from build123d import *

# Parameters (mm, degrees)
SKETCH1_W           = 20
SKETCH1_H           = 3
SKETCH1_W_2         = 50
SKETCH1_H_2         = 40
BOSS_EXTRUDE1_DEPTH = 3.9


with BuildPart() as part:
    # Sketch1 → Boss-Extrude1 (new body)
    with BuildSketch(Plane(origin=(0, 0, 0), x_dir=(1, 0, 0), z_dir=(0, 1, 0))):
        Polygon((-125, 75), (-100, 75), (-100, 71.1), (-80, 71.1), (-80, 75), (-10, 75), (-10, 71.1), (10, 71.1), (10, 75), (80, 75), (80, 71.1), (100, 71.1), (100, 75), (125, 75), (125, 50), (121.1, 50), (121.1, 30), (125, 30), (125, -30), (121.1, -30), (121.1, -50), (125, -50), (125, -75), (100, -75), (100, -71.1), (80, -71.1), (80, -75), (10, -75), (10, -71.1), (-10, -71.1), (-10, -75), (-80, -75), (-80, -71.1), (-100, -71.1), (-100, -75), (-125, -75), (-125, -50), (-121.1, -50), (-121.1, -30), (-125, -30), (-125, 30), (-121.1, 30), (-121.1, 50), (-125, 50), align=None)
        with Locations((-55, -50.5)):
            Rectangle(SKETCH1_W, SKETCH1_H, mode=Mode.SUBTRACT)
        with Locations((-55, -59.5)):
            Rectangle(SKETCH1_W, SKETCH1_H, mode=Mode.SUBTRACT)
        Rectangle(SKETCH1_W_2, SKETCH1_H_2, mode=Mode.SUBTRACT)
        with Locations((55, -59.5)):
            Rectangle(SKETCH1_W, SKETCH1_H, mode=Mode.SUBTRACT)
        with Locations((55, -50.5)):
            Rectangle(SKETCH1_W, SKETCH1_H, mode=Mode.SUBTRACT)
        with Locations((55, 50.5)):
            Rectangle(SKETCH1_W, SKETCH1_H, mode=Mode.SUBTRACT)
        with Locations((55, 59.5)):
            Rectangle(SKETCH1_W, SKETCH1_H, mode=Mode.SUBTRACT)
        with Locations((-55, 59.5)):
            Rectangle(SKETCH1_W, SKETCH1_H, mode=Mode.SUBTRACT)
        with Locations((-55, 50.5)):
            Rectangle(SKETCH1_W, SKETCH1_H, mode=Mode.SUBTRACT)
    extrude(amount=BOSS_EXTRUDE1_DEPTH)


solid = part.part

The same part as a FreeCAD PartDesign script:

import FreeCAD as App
import Part
import Sketcher

V = App.Vector
Q = App.Units.Quantity


def add_polygon(sketch, points):
    """Adds a closed chain of lines whose ends are joined by coincident constraints."""
    first, n = sketch.GeometryCount, len(points)
    for a, b in zip(points, points[1:] + points[:1]):
        sketch.addGeometry(Part.LineSegment(App.Vector(*a, 0), App.Vector(*b, 0)), False)
    for i in range(n):
        sketch.addConstraint(Sketcher.Constraint("Coincident", first + i, 2, first + (i + 1) % n, 1))

doc = App.newDocument("Part")
body = doc.addObject("PartDesign::Body", "Body")

# Sketch on XZ plane
sketch1 = body.newObject("Sketcher::SketchObject", "Sketch")
sketch1.AttachmentSupport = (doc.getObject("XZ_Plane"), [""])
sketch1.MapMode = "FlatFace"
add_polygon(sketch1, [(-100, -75), (-125, -75), (-125, -50), (-121.1, -50), (-121.1, -30), (-125, -30), (-125, 30), (-121.1, 30), (-121.1, 50), (-125, 50), (-125, 75), (-100, 75), (-100, 71.1), (-80, 71.1), (-80, 75), (-10, 75), (-10, 71.1), (10, 71.1), (10, 75), (80, 75), (80, 71.1), (100, 71.1), (100, 75), (125, 75), (125, 50), (121.1, 50), (121.1, 30), (125, 30), (125, -30), (121.1, -30), (121.1, -50), (125, -50), (125, -75), (100, -75), (100, -71.1), (80, -71.1), (80, -75), (10, -75), (10, -71.1), (-10, -71.1), (-10, -75), (-80, -75), (-80, -71.1), (-100, -71.1)])  # lines 0-43
add_polygon(sketch1, [(45, 61), (45, 58), (65, 58), (65, 61)])  # lines 44-47
add_polygon(sketch1, [(45, 52), (45, 49), (65, 49), (65, 52)])  # lines 48-51
add_polygon(sketch1, [(-65, 61), (-65, 58), (-45, 58), (-45, 61)])  # lines 52-55
add_polygon(sketch1, [(-65, 52), (-65, 49), (-45, 49), (-45, 52)])  # lines 56-59
add_polygon(sketch1, [(45, -49), (45, -52), (65, -52), (65, -49)])  # lines 60-63
add_polygon(sketch1, [(45, -58), (45, -61), (65, -61), (65, -58)])  # lines 64-67
add_polygon(sketch1, [(-25, 20), (-25, -20), (25, -20), (25, 20)])  # lines 68-71
add_polygon(sketch1, [(-65, -49), (-65, -52), (-45, -52), (-45, -49)])  # lines 72-75
add_polygon(sketch1, [(-65, -58), (-65, -61), (-45, -61), (-45, -58)])  # lines 76-79
sketch1.addConstraint([
    Sketcher.Constraint("Horizontal", 0),
    Sketcher.Constraint("Vertical", 1),
    Sketcher.Constraint("Horizontal", 2),
    Sketcher.Constraint("Vertical", 3),
    Sketcher.Constraint("Horizontal", 4),
    Sketcher.Constraint("Vertical", 5),
    Sketcher.Constraint("Horizontal", 6),
    Sketcher.Constraint("Vertical", 7),
    Sketcher.Constraint("Horizontal", 8),
    Sketcher.Constraint("Vertical", 9),
    Sketcher.Constraint("Horizontal", 10),
    Sketcher.Constraint("Vertical", 11),
    Sketcher.Constraint("Horizontal", 12),
    Sketcher.Constraint("Vertical", 13),
    Sketcher.Constraint("Horizontal", 14),
    Sketcher.Constraint("Vertical", 15),
    Sketcher.Constraint("Horizontal", 16),
    Sketcher.Constraint("Vertical", 17),
    Sketcher.Constraint("Horizontal", 18),
    Sketcher.Constraint("Vertical", 19),
    Sketcher.Constraint("Horizontal", 20),
    Sketcher.Constraint("Vertical", 21),
    Sketcher.Constraint("Horizontal", 22),
    Sketcher.Constraint("Vertical", 23),
    Sketcher.Constraint("Horizontal", 24),
    Sketcher.Constraint("Vertical", 25),
    Sketcher.Constraint("Horizontal", 26),
    Sketcher.Constraint("Vertical", 27),
    Sketcher.Constraint("Horizontal", 28),
    Sketcher.Constraint("Vertical", 29),
    Sketcher.Constraint("Horizontal", 30),
    Sketcher.Constraint("Vertical", 31),
    Sketcher.Constraint("Horizontal", 32),
    Sketcher.Constraint("Vertical", 33),
    Sketcher.Constraint("Horizontal", 34),
    Sketcher.Constraint("Vertical", 35),
    Sketcher.Constraint("Horizontal", 36),
    Sketcher.Constraint("Vertical", 37),
    Sketcher.Constraint("Horizontal", 38),
    Sketcher.Constraint("Vertical", 39),
    Sketcher.Constraint("Horizontal", 40),
    Sketcher.Constraint("Vertical", 41),
    Sketcher.Constraint("Horizontal", 42),
    Sketcher.Constraint("Vertical", 43),
    Sketcher.Constraint("Vertical", 44),
    Sketcher.Constraint("Horizontal", 45),
    Sketcher.Constraint("Vertical", 46),
    Sketcher.Constraint("Horizontal", 47),
    Sketcher.Constraint("Vertical", 48),
    Sketcher.Constraint("Horizontal", 49),
    Sketcher.Constraint("Vertical", 50),
    Sketcher.Constraint("Horizontal", 51),
    Sketcher.Constraint("Vertical", 52),
    Sketcher.Constraint("Horizontal", 53),
    Sketcher.Constraint("Vertical", 54),
    Sketcher.Constraint("Horizontal", 55),
    Sketcher.Constraint("Vertical", 56),
    Sketcher.Constraint("Horizontal", 57),
    Sketcher.Constraint("Vertical", 58),
    Sketcher.Constraint("Horizontal", 59),
    Sketcher.Constraint("Vertical", 60),
    Sketcher.Constraint("Horizontal", 61),
    Sketcher.Constraint("Vertical", 62),
    Sketcher.Constraint("Horizontal", 63),
    Sketcher.Constraint("Vertical", 64),
    Sketcher.Constraint("Horizontal", 65),
    Sketcher.Constraint("Vertical", 66),
    Sketcher.Constraint("Horizontal", 67),
    Sketcher.Constraint("Vertical", 68),
    Sketcher.Constraint("Horizontal", 69),
    Sketcher.Constraint("Vertical", 70),
    Sketcher.Constraint("Horizontal", 71),
    Sketcher.Constraint("Vertical", 72),
    Sketcher.Constraint("Horizontal", 73),
    Sketcher.Constraint("Vertical", 74),
    Sketcher.Constraint("Horizontal", 75),
    Sketcher.Constraint("Vertical", 76),
    Sketcher.Constraint("Horizontal", 77),
    Sketcher.Constraint("Vertical", 78),
    Sketcher.Constraint("Horizontal", 79),
    Sketcher.Constraint("Symmetric", 0, 2, 22, 2, -1, 1),
    Sketcher.Constraint("Symmetric", 2, 2, 24, 2, -1, 1),
    Sketcher.Constraint("Symmetric", 4, 2, 26, 2, -1, 1),
    Sketcher.Constraint("Symmetric", 6, 2, 28, 2, -1, 1),
    Sketcher.Constraint("Symmetric", 8, 2, 30, 2, -1, 1),
    Sketcher.Constraint("Symmetric", 10, 2, 32, 2, -1, 1),
    Sketcher.Constraint("Symmetric", 12, 2, 34, 2, -1, 1),
    Sketcher.Constraint("Symmetric", 14, 2, 36, 2, -1, 1),
    Sketcher.Constraint("Symmetric", 16, 2, 38, 2, -1, 1),
    Sketcher.Constraint("Symmetric", 18, 2, 40, 2, -1, 1),
    Sketcher.Constraint("Symmetric", 20, 2, 42, 2, -1, 1),
    Sketcher.Constraint("Symmetric", 58, 2, 60, 2, -1, 1),
    Sketcher.Constraint("Symmetric", 56, 2, 62, 2, -1, 1),
    Sketcher.Constraint("Symmetric", 54, 2, 64, 2, -1, 1),
    Sketcher.Constraint("Symmetric", 52, 2, 66, 2, -1, 1),
    Sketcher.Constraint("Symmetric", 68, 2, 70, 2, -1, 1),
    Sketcher.Constraint("Symmetric", 50, 2, 72, 2, -1, 1),
    Sketcher.Constraint("Symmetric", 48, 2, 74, 2, -1, 1),
    Sketcher.Constraint("Symmetric", 46, 2, 76, 2, -1, 1),
    Sketcher.Constraint("Symmetric", 44, 2, 78, 2, -1, 1),
    Sketcher.Constraint("Symmetric", 14, 2, 17, 2, -2),
    Sketcher.Constraint("Symmetric", 12, 2, 19, 2, -2),
    Sketcher.Constraint("Symmetric", 10, 2, 21, 2, -2),
    Sketcher.Constraint("Symmetric", 8, 2, 23, 2, -2),
    Sketcher.Constraint("Symmetric", 6, 2, 25, 2, -2),
    Sketcher.Constraint("Symmetric", 45, 2, 52, 2, -2),
    Sketcher.Constraint("Symmetric", 47, 2, 54, 2, -2),
    Sketcher.Constraint("Symmetric", 49, 2, 56, 2, -2),
    Sketcher.Constraint("Symmetric", 51, 2, 58, 2, -2),
    Sketcher.Constraint("Horizontal", 10, 2, 13, 2),
    Sketcher.Constraint("Horizontal", 12, 2, 15, 2),
    Sketcher.Constraint("Vertical", 1, 2, 4, 2),
    Sketcher.Constraint("Vertical", 47, 2, 48, 2),
    Sketcher.Constraint("Vertical", 46, 2, 49, 2),
    Sketcher.Constraint("Equal", 12, 16),
    Sketcher.Constraint("Equal", 42, 45),
    Sketcher.Constraint("Equal", 32, 1),
    Sketcher.Constraint("Equal", 79, 3),
    Sketcher.Constraint("Equal", 30, 11),
    Sketcher.Constraint("Equal", 46, 48),
    Sketcher.Constraint("DistanceX", 0, 2, 0, 1, Q("25 mm")),
    Sketcher.Constraint("DistanceX", 12, 1, 12, 2, Q("20 mm")),
    Sketcher.Constraint("DistanceX", 14, 1, 14, 2, Q("70 mm")),
    Sketcher.Constraint("DistanceX", 69, 1, 69, 2, Q("50 mm")),
    Sketcher.Constraint("DistanceY", 5, 1, 5, 2, Q("60 mm")),
    Sketcher.Constraint("DistanceY", 44, 2, 44, 1, Q("3 mm")),
    Sketcher.Constraint("DistanceY", 68, 2, 68, 1, Q("40 mm")),
    Sketcher.Constraint("DistanceX", 2, 1, 2, 2, Q("3.9 mm")),
    Sketcher.Constraint("DistanceX", -1, 1, 44, 2, Q("45 mm")),
    Sketcher.Constraint("DistanceY", -1, 1, 44, 2, Q("58 mm")),
    Sketcher.Constraint("DistanceY", -1, 1, 48, 2, Q("49 mm")),
])
pad1 = body.newObject("PartDesign::Pad", "Pad")
pad1.Profile = sketch1
pad1.Length = 3.9
pad1.Reversed = True

doc.recompute()
